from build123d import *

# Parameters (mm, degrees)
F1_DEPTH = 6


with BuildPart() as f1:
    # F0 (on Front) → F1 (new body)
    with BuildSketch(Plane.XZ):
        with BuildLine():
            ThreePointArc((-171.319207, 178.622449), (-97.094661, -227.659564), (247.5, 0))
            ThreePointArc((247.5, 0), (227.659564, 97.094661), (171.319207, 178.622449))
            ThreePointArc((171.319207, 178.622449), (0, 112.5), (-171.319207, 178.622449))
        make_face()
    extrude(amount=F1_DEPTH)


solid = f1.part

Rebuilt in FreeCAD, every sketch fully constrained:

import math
import FreeCAD as App
import Part
import Sketcher
from FreeCAD import Vector
Q = App.Units.Quantity

doc = App.newDocument("Part")
body = doc.addObject("PartDesign::Body", "Body")

sketch1 = doc.addObject("Sketcher::SketchObject", "Sketch")
body.addObject(sketch1)
sketch1.AttachmentSupport = (doc.XZ_Plane, [""])
sketch1.MapMode = "FlatFace"
sketch1.addGeometry(Part.ArcOfCircle(Part.Circle(Vector(0, 0, 0), Vector(0, 0, 1), 247.5), math.radians(133.804417), math.radians(360)), False)
sketch1.addGeometry(Part.ArcOfCircle(Part.Circle(Vector(0.000007, 0.000003, 0), Vector(0, 0, 1), 247.499993), math.radians(-0.000001), math.radians(46.195583)), False)
sketch1.addGeometry(Part.ArcOfCircle(Part.Circle(Vector(0, 367.5, 0), Vector(0, 0, 1), 255), math.radians(-132.209238), math.radians(-47.790762)), False)
sketch1.addConstraint(Sketcher.Constraint("Tangent", 0, 2, 1, 1))
sketch1.addConstraint(Sketcher.Constraint("Coincident", 1, 2, 2, 2))
sketch1.addConstraint(Sketcher.Constraint("Coincident", 2, 1, 0, 1))
sketch1.addConstraint(Sketcher.Constraint("Coincident", 0, 3, -1, 1))
sketch1.addConstraint(Sketcher.Constraint("PointOnObject", 2, 3, -2))
sketch1.addConstraint(Sketcher.Constraint("PointOnObject", 0, 2, -1))
sketch1.addConstraint(Sketcher.Constraint("Radius", 2, Q("255 mm")))
sketch1.addConstraint(Sketcher.Constraint("Radius", 0, Q("247.5 mm")))
sketch1.addConstraint(Sketcher.Constraint("DistanceY", -1, 1, 2, 3, Q("367.5 mm")))
sketch1.addConstraint(Sketcher.Constraint("Radius", 1, Q("247.499993 mm")))
pad1 = doc.addObject("PartDesign::Pad", "Pad")
body.addObject(pad1)
pad1.Profile = sketch1
pad1.Length = 6

doc.recompute()
